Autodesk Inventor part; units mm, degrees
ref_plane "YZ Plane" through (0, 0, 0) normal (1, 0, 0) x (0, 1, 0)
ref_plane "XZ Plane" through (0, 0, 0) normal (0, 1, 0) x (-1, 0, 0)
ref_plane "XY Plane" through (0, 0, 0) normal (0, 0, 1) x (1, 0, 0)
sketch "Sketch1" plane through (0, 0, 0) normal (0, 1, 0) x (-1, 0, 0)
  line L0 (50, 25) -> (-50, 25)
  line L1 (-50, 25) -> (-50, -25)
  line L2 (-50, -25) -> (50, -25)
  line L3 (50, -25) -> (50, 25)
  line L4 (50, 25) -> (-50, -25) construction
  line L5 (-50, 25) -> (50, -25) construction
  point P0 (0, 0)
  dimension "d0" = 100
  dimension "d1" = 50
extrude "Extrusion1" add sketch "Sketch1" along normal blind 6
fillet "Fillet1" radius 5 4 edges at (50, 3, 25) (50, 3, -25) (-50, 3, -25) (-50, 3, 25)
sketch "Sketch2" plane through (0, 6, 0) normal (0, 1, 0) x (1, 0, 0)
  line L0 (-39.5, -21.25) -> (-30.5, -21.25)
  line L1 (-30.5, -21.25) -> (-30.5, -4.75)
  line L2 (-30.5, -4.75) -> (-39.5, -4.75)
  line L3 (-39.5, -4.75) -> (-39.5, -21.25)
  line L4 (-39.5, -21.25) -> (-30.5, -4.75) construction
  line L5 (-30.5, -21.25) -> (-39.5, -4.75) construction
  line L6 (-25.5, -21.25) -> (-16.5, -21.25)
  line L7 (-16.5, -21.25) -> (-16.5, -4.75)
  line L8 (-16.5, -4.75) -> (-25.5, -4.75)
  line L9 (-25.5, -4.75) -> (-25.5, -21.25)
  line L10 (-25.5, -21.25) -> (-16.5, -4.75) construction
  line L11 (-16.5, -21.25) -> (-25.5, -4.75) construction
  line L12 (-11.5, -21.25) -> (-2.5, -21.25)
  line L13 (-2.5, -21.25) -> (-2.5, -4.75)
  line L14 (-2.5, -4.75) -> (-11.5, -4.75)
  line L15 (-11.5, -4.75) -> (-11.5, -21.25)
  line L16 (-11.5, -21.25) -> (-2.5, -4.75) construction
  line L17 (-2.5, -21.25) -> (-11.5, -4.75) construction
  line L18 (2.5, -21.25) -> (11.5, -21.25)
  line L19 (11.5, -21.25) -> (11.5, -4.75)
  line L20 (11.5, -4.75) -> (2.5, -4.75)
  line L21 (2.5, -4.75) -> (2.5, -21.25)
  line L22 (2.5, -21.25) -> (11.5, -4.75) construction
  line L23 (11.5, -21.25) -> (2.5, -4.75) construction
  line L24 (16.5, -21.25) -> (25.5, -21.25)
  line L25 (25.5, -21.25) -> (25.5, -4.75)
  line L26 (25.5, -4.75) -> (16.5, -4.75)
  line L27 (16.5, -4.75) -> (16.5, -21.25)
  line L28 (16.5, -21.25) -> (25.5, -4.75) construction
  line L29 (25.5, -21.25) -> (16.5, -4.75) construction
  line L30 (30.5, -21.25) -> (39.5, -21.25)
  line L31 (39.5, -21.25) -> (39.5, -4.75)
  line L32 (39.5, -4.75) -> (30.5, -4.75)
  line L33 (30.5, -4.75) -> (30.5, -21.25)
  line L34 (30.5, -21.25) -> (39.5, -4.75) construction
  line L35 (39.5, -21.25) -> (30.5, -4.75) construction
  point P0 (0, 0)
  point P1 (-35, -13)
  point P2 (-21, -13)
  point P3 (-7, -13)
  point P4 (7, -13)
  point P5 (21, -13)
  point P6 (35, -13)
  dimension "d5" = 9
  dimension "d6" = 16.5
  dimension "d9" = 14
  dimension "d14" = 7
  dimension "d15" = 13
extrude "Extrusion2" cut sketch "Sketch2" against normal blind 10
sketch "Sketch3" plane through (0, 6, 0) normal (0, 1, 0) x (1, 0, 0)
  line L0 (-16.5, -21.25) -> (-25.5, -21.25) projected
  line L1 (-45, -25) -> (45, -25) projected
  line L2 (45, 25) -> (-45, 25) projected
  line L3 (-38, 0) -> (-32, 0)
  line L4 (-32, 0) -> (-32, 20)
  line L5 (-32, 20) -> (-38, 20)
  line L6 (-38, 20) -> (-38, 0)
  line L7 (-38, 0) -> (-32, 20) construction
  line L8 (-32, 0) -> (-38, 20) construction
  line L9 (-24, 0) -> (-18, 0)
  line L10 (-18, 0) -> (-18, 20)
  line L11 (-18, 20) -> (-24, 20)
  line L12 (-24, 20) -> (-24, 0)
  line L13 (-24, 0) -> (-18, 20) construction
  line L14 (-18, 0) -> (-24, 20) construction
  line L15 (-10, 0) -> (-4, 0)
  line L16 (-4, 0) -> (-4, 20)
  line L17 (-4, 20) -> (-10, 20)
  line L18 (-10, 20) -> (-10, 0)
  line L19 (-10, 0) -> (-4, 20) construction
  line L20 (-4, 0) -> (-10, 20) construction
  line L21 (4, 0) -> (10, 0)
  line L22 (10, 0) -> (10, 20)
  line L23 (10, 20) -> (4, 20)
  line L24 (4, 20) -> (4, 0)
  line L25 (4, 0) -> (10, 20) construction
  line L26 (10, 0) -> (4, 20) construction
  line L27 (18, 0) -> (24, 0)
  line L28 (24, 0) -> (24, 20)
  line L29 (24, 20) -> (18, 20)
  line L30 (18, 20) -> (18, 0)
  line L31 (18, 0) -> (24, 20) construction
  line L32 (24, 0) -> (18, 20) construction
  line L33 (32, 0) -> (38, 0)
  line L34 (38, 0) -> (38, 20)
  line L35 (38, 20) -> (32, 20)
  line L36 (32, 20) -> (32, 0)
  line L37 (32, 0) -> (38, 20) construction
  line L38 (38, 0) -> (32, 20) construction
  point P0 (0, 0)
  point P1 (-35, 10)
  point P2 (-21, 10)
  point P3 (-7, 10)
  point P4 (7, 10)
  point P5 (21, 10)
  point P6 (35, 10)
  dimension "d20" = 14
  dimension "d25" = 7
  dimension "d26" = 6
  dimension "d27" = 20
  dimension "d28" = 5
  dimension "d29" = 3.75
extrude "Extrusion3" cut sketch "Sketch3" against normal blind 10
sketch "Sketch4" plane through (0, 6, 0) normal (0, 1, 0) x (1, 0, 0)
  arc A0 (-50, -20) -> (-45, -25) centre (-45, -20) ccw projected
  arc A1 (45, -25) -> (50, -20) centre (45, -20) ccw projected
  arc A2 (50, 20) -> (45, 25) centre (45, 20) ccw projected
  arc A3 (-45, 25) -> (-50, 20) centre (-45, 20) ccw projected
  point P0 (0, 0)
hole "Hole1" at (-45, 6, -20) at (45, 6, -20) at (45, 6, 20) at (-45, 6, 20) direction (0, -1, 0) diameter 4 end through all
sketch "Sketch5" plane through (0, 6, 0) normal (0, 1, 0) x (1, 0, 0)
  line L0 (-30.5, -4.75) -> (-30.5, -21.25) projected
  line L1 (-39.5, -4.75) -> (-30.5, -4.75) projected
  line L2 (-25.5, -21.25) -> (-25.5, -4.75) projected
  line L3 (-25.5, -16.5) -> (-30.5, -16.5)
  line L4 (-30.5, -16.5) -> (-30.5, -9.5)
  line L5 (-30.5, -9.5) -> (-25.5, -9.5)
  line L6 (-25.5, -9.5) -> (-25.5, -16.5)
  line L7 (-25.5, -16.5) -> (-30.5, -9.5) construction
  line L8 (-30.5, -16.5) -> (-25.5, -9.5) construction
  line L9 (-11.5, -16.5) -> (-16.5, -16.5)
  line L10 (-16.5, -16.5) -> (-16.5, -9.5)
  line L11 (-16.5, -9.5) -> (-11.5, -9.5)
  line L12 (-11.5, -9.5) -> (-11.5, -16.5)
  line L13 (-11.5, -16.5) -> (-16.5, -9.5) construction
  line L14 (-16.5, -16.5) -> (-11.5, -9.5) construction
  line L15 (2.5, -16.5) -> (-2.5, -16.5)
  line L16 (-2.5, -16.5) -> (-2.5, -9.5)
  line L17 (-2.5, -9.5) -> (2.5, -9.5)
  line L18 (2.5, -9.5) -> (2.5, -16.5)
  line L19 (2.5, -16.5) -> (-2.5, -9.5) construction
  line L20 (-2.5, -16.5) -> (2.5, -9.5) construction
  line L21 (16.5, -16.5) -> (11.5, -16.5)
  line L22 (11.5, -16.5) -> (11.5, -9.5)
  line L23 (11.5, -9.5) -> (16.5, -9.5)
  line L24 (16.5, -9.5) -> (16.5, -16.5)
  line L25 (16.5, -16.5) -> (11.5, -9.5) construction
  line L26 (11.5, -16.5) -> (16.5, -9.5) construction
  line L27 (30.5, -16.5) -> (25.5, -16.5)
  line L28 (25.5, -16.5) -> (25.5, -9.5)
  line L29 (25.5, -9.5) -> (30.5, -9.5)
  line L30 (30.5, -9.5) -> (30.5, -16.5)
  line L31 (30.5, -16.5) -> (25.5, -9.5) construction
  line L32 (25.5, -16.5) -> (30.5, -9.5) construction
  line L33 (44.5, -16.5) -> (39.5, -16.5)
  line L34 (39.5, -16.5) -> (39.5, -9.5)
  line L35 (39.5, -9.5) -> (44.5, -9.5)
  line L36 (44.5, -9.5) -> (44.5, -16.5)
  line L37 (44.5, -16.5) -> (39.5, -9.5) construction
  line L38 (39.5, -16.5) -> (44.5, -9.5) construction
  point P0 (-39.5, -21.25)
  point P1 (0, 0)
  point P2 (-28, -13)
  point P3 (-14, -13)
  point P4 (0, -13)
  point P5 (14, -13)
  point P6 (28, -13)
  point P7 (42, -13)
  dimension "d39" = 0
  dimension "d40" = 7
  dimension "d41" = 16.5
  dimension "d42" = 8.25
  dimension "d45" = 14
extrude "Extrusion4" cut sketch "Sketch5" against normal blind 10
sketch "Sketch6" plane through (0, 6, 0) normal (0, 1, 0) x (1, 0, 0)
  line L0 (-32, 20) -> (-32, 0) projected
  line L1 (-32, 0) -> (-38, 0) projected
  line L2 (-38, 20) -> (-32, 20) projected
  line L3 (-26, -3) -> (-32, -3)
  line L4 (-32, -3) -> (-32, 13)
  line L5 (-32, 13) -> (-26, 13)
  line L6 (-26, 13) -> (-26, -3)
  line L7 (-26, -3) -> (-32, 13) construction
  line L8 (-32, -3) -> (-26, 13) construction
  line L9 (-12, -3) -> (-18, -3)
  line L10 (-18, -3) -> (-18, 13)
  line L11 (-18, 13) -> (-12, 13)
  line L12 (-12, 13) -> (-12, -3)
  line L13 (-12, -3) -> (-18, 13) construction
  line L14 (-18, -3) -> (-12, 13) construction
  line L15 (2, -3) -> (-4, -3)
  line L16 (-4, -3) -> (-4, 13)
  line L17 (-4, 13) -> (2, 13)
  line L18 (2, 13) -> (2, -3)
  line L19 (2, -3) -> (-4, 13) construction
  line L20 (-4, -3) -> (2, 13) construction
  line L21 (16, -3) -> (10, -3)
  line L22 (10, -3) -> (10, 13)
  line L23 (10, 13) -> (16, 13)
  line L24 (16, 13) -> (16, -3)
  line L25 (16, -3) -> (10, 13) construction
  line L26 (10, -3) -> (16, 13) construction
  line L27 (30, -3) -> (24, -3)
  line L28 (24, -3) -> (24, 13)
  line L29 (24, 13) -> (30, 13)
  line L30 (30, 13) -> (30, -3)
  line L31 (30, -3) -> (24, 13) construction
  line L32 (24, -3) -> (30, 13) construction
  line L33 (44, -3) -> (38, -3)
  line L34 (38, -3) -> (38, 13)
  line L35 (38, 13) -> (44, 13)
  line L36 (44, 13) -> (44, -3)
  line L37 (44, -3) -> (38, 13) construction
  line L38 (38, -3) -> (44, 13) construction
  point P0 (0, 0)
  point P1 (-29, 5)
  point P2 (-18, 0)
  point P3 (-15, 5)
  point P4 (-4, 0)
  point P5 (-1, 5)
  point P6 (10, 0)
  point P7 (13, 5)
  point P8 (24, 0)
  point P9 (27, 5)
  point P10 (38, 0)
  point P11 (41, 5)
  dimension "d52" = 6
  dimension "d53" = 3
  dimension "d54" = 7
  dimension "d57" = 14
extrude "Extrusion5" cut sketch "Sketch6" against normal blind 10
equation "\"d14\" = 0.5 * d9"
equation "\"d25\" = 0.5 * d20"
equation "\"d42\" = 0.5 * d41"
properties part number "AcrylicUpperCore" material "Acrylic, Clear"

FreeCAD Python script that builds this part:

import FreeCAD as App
import Part
import Sketcher
from FreeCAD import Vector
Q = App.Units.Quantity


def edges_at(feature, points):
    """Names of the edges that pass closest to the given points."""
    edges = feature.Shape.Edges
    near = lambda p: min(range(len(edges)), key=lambda i: edges[i].distToShape(Part.Vertex(*p))[0])
    return sorted({f"Edge{near(p) + 1}" for p in points})


def add_polygon(sketch, points):
    """Adds a closed chain of lines whose ends are joined by coincident constraints."""
    first, n = sketch.GeometryCount, len(points)
    for a, b in zip(points, points[1:] + points[:1]):
        sketch.addGeometry(Part.LineSegment(App.Vector(*a, 0), App.Vector(*b, 0)), False)
    for i in range(n):
        sketch.addConstraint(Sketcher.Constraint("Coincident", first + i, 2, first + (i + 1) % n, 1))

doc = App.newDocument("Part")
body = doc.addObject("PartDesign::Body", "Body")

sketch1 = body.newObject("Sketcher::SketchObject", "Sketch")
sketch1.AttachmentSupport = (doc.getObject("XZ_Plane"), [""])
sketch1.MapMode = "FlatFace"
add_polygon(sketch1, [(-50, -25), (-50, 25), (50, 25), (50, -25)])
sketch1.addConstraint([
    Sketcher.Constraint("Vertical", 0),
    Sketcher.Constraint("Horizontal", 1),
    Sketcher.Constraint("Vertical", 2),
    Sketcher.Constraint("Horizontal", 3),
    Sketcher.Constraint("Symmetric", 0, 2, 2, 2, -1, 1),
    Sketcher.Constraint("DistanceX", 1, 1, 1, 2, Q("100 mm")),
    Sketcher.Constraint("DistanceY", 0, 1, 0, 2, Q("50 mm")),
])
pad1 = body.newObject("PartDesign::Pad", "Pad")
pad1.Profile = sketch1
pad1.Length = 6
pad1.Reversed = True
doc.recompute()

fillet = body.newObject("PartDesign::Fillet", "Fillet")
fillet.Base = (pad1, edges_at(pad1, [
    (50, 3, 25),
    (50, 3, -25),
    (-50, 3, -25),
    (-50, 3, 25),
]))
fillet.Radius = 5

sketch2 = body.newObject("Sketcher::SketchObject", "Sketch001")
sketch2.AttachmentSupport = (doc.getObject("XZ_Plane"), [""])
sketch2.MapMode = "FlatFace"
sketch2.AttachmentOffset = App.Placement(Vector(0, 0, -6), App.Rotation())
add_polygon(sketch2, [(-40, 5), (-40, 21), (-30, 21), (-30, 5)])
add_polygon(sketch2, [(-26, 5), (-26, 21), (-16, 21), (-16, 5)])
add_polygon(sketch2, [(-12, 5), (-12, 21), (-2, 21), (-2, 5)])
add_polygon(sketch2, [(2, 5), (2, 21), (12, 21), (12, 5)])
add_polygon(sketch2, [(16, 5), (16, 21), (26, 21), (26, 5)])
add_polygon(sketch2, [(30, 5), (30, 21), (40, 21), (40, 5)])
sketch2.addConstraint([
    Sketcher.Constraint("Vertical", 0),
    Sketcher.Constraint("Horizontal", 1),
    Sketcher.Constraint("Vertical", 2),
    Sketcher.Constraint("Horizontal", 3),
    Sketcher.Constraint("Vertical", 4),
    Sketcher.Constraint("Horizontal", 5),
    Sketcher.Constraint("Vertical", 6),
    Sketcher.Constraint("Horizontal", 7),
    Sketcher.Constraint("Vertical", 8),
    Sketcher.Constraint("Horizontal", 9),
    Sketcher.Constraint("Vertical", 10),
    Sketcher.Constraint("Horizontal", 11),
    Sketcher.Constraint("Vertical", 12),
    Sketcher.Constraint("Horizontal", 13),
    Sketcher.Constraint("Vertical", 14),
    Sketcher.Constraint("Horizontal", 15),
    Sketcher.Constraint("Vertical", 16),
    Sketcher.Constraint("Horizontal", 17),
    Sketcher.Constraint("Vertical", 18),
    Sketcher.Constraint("Horizontal", 19),
    Sketcher.Constraint("Vertical", 20),
    Sketcher.Constraint("Horizontal", 21),
    Sketcher.Constraint("Vertical", 22),
    Sketcher.Constraint("Horizontal", 23),
    Sketcher.Constraint("Symmetric", 9, 2, 12, 2, -2),
    Sketcher.Constraint("Symmetric", 11, 2, 14, 2, -2),
    Sketcher.Constraint("Symmetric", 5, 2, 16, 2, -2),
    Sketcher.Constraint("Symmetric", 7, 2, 18, 2, -2),
    Sketcher.Constraint("Symmetric", 1, 2, 20, 2, -2),
    Sketcher.Constraint("Symmetric", 3, 2, 22, 2, -2),
    Sketcher.Constraint("Horizontal", 1, 2, 4, 2),
    Sketcher.Constraint("Horizontal", 3, 2, 6, 2),
    Sketcher.Constraint("Horizontal", 5, 2, 8, 2),
    Sketcher.Constraint("Horizontal", 7, 2, 10, 2),
    Sketcher.Constraint("Equal", 3, 5),
    Sketcher.Constraint("Equal", 7, 9),
    Sketcher.Constraint("DistanceX", 1, 1, 1, 2, Q("9 mm")),
    Sketcher.Constraint("DistanceY", 0, 1, 0, 2, Q("16.5 mm")),
    Sketcher.Constraint("DistanceX", 0, 2, 4, 2, Q("14 mm")),
    Sketcher.Constraint("DistanceX", 4, 2, 8, 2, Q("14 mm")),
    Sketcher.Constraint("DistanceX", 8, 2, 12, 2, Q("14 mm")),
    Sketcher.Constraint("DistanceY", -1, 1, 0, 2, Q("21.25 mm")),
])
pocket1 = body.newObject("PartDesign::Pocket", "Pocket")
pocket1.Profile = sketch2
pocket1.Length = 10
pocket1.Reversed = True

sketch3 = body.newObject("Sketcher::SketchObject", "Sketch002")
sketch3.AttachmentSupport = (doc.getObject("XZ_Plane"), [""])
sketch3.MapMode = "FlatFace"
sketch3.AttachmentOffset = App.Placement(Vector(0, 0, -6), App.Rotation())
add_polygon(sketch3, [(-38, -20), (-38, 0), (-32, 0), (-32, -20)])
add_polygon(sketch3, [(-24, -20), (-24, 0), (-18, 0), (-18, -20)])
add_polygon(sketch3, [(-10, -20), (-10, 0), (-4, 0), (-4, -20)])
add_polygon(sketch3, [(4, -20), (4, 0), (10, 0), (10, -20)])
add_polygon(sketch3, [(18, -20), (18, 0), (24, 0), (24, -20)])
add_polygon(sketch3, [(32, -20), (32, 0), (38, 0), (38, -20)])
sketch3.addConstraint([
    Sketcher.Constraint("Vertical", 0),
    Sketcher.Constraint("Horizontal", 1),
    Sketcher.Constraint("Vertical", 2),
    Sketcher.Constraint("Horizontal", 3),
    Sketcher.Constraint("Vertical", 4),
    Sketcher.Constraint("Horizontal", 5),
    Sketcher.Constraint("Vertical", 6),
    Sketcher.Constraint("Horizontal", 7),
    Sketcher.Constraint("Vertical", 8),
    Sketcher.Constraint("Horizontal", 9),
    Sketcher.Constraint("Vertical", 10),
    Sketcher.Constraint("Horizontal", 11),
    Sketcher.Constraint("Vertical", 12),
    Sketcher.Constraint("Horizontal", 13),
    Sketcher.Constraint("Vertical", 14),
    Sketcher.Constraint("Horizontal", 15),
    Sketcher.Constraint("Vertical", 16),
    Sketcher.Constraint("Horizontal", 17),
    Sketcher.Constraint("Vertical", 18),
    Sketcher.Constraint("Horizontal", 19),
    Sketcher.Constraint("Vertical", 20),
    Sketcher.Constraint("Horizontal", 21),
    Sketcher.Constraint("Vertical", 22),
    Sketcher.Constraint("Horizontal", 23),
    Sketcher.Constraint("Symmetric", 9, 2, 12, 2, -1, 1),
    Sketcher.Constraint("Symmetric", 5, 2, 16, 2, -1, 1),
    Sketcher.Constraint("Symmetric", 1, 2, 20, 2, -1, 1),
    Sketcher.Constraint("Symmetric", 8, 2, 13, 2, -2),
    Sketcher.Constraint("Symmetric", 4, 2, 17, 2, -2),
    Sketcher.Constraint("Symmetric", 0, 2, 21, 2, -2),
    Sketcher.Constraint("Horizontal", 3, 2, 6, 2),
    Sketcher.Constraint("Horizontal", 7, 2, 10, 2),
    Sketcher.Constraint("Horizontal", 11, 2, 14, 2),
    Sketcher.Constraint("Horizontal", 15, 2, 18, 2),
    Sketcher.Constraint("Horizontal", 19, 2, 22, 2),
    Sketcher.Constraint("Equal", 3, 5),
    Sketcher.Constraint("Equal", 7, 9),
    Sketcher.Constraint("DistanceX", 1, 1, 1, 2, Q("6 mm")),
    Sketcher.Constraint("DistanceY", 0, 1, 0, 2, Q("20 mm")),
    Sketcher.Constraint("DistanceX", 8, 2, -1, 1, Q("10 mm")),
    Sketcher.Constraint("DistanceX", 0, 2, 4, 2, Q("14 mm")),
    Sketcher.Constraint("DistanceX", 4, 2, 8, 2, Q("14 mm")),
])
pocket2 = body.newObject("PartDesign::Pocket", "Pocket001")
pocket2.Profile = sketch3
pocket2.Length = 10
pocket2.Reversed = True

sketch4 = body.newObject("Sketcher::SketchObject", "Sketch003")
sketch4.AttachmentSupport = (doc.getObject("XZ_Plane"), [""])
sketch4.MapMode = "FlatFace"
sketch4.AttachmentOffset = App.Placement(Vector(0, 0, -6), App.Rotation())
sketch4.addGeometry([
    Part.Circle(Vector(-45, -20, 0), Vector(0, 0, 1), 2),
    Part.Circle(Vector(45, -20, 0), Vector(0, 0, 1), 2),
    Part.Circle(Vector(45, 20, 0), Vector(0, 0, 1), 2),
    Part.Circle(Vector(-45, 20, 0), Vector(0, 0, 1), 2),
], False)
sketch4.addConstraint([
    Sketcher.Constraint("Equal", 0, 1),
    Sketcher.Constraint("Equal", 1, 2),
    Sketcher.Constraint("Equal", 2, 3),
    Sketcher.Constraint("Symmetric", 0, 3, 2, 3, -1, 1),
    Sketcher.Constraint("Symmetric", 1, 3, 3, 3, -1, 1),
    Sketcher.Constraint("Symmetric", 0, 3, 1, 3, -2),
    Sketcher.Constraint("Diameter", 0, Q("4 mm")),
    Sketcher.Constraint("DistanceX", 0, 3, -1, 1, Q("45 mm")),
    Sketcher.Constraint("DistanceY", 0, 3, -1, 1, Q("20 mm")),
])
doc.recompute()
hole = body.newObject("PartDesign::Hole", "Hole")
hole.Profile = sketch4
hole.ThreadType = "None"
hole.Diameter = 4
hole.DepthType = "ThroughAll"
hole.Reversed = True

sketch5 = body.newObject("Sketcher::SketchObject", "Sketch004")
sketch5.AttachmentSupport = (doc.getObject("XZ_Plane"), [""])
sketch5.MapMode = "FlatFace"
sketch5.AttachmentOffset = App.Placement(Vector(0, 0, -6), App.Rotation())
add_polygon(sketch5, [(-26, 10), (-30, 10), (-30, 16), (-26, 16)])
add_polygon(sketch5, [(-16, 16), (-12, 16), (-12, 10), (-16, 10)])
add_polygon(sketch5, [(-2, 16), (2, 16), (2, 10), (-2, 10)])
add_polygon(sketch5, [(12, 16), (16, 16), (16, 10), (12, 10)])
add_polygon(sketch5, [(26, 16), (30, 16), (30, 10), (26, 10)])
add_polygon(sketch5, [(40, 16), (44, 16), (44, 10), (40, 10)])
sketch5.addConstraint([
    Sketcher.Constraint("Horizontal", 0),
    Sketcher.Constraint("Vertical", 1),
    Sketcher.Constraint("Horizontal", 2),
    Sketcher.Constraint("Vertical", 3),
    Sketcher.Constraint("Horizontal", 4),
    Sketcher.Constraint("Vertical", 5),
    Sketcher.Constraint("Horizontal", 6),
    Sketcher.Constraint("Vertical", 7),
    Sketcher.Constraint("Horizontal", 8),
    Sketcher.Constraint("Vertical", 9),
    Sketcher.Constraint("Horizontal", 10),
    Sketcher.Constraint("Vertical", 11),
    Sketcher.Constraint("Horizontal", 12),
    Sketcher.Constraint("Vertical", 13),
    Sketcher.Constraint("Horizontal", 14),
    Sketcher.Constraint("Vertical", 15),
    Sketcher.Constraint("Horizontal", 16),
    Sketcher.Constraint("Vertical", 17),
    Sketcher.Constraint("Horizontal", 18),
    Sketcher.Constraint("Vertical", 19),
    Sketcher.Constraint("Horizontal", 20),
    Sketcher.Constraint("Vertical", 21),
    Sketcher.Constraint("Horizontal", 22),
    Sketcher.Constraint("Vertical", 23),
    Sketcher.Constraint("Symmetric", 7, 2, 12, 2, -2),
    Sketcher.Constraint("Symmetric", 5, 2, 14, 2, -2),
    Sketcher.Constraint("Symmetric", 1, 2, 16, 2, -2),
    Sketcher.Constraint("Symmetric", 3, 2, 18, 2, -2),
    Sketcher.Constraint("Horizontal", 2, 2, 4, 2),
    Sketcher.Constraint("Horizontal", 3, 2, 5, 2),
    Sketcher.Constraint("Horizontal", 7, 2, 8, 2),
    Sketcher.Constraint("Horizontal", 6, 2, 9, 2),
    Sketcher.Constraint("Horizontal", 19, 2, 20, 2),
    Sketcher.Constraint("Horizontal", 18, 2, 21, 2),
    Sketcher.Constraint("Equal", 2, 4),
    Sketcher.Constraint("Equal", 6, 8),
    Sketcher.Constraint("Equal", 18, 20),
    Sketcher.Constraint("DistanceY", 1, 1, 1, 2, Q("7 mm")),
    Sketcher.Constraint("DistanceX", 2, 2, 4, 2, Q("14 mm")),
    Sketcher.Constraint("DistanceX", 4, 2, 8, 2, Q("14 mm")),
    Sketcher.Constraint("DistanceX", 8, 2, 12, 2, Q("14 mm")),
    Sketcher.Constraint("DistanceX", 16, 2, 20, 2, Q("14 mm")),
    Sketcher.Constraint("DistanceY", -1, 1, 1, 2, Q("16.5 mm")),
    Sketcher.Constraint("DistanceX", 6, 2, -1, 1, Q("16.5 mm")),
])
pocket3 = body.newObject("PartDesign::Pocket", "Pocket002")
pocket3.Profile = sketch5
pocket3.Length = 10
pocket3.Reversed = True

sketch6 = body.newObject("Sketcher::SketchObject", "Sketch005")
sketch6.AttachmentSupport = (doc.getObject("XZ_Plane"), [""])
sketch6.MapMode = "FlatFace"
sketch6.AttachmentOffset = App.Placement(Vector(0, 0, -6), App.Rotation())
add_polygon(sketch6, [(-26, -13), (-32, -13), (-32, 3), (-26, 3)])
add_polygon(sketch6, [(-18, 3), (-12, 3), (-12, -13), (-18, -13)])
add_polygon(sketch6, [(-4, 3), (2, 3), (2, -13), (-4, -13)])
add_polygon(sketch6, [(10, 3), (16, 3), (16, -13), (10, -13)])
add_polygon(sketch6, [(24, 3), (30, 3), (30, -13), (24, -13)])
add_polygon(sketch6, [(38, 3), (44, 3), (44, -13), (38, -13)])
sketch6.addConstraint([
    Sketcher.Constraint("Horizontal", 0),
    Sketcher.Constraint("Vertical", 1),
    Sketcher.Constraint("Horizontal", 2),
    Sketcher.Constraint("Vertical", 3),
    Sketcher.Constraint("Horizontal", 4),
    Sketcher.Constraint("Vertical", 5),
    Sketcher.Constraint("Horizontal", 6),
    Sketcher.Constraint("Vertical", 7),
    Sketcher.Constraint("Horizontal", 8),
    Sketcher.Constraint("Vertical", 9),
    Sketcher.Constraint("Horizontal", 10),
    Sketcher.Constraint("Vertical", 11),
    Sketcher.Constraint("Horizontal", 12),
    Sketcher.Constraint("Vertical", 13),
    Sketcher.Constraint("Horizontal", 14),
    Sketcher.Constraint("Vertical", 15),
    Sketcher.Constraint("Horizontal", 16),
    Sketcher.Constraint("Vertical", 17),
    Sketcher.Constraint("Horizontal", 18),
    Sketcher.Constraint("Vertical", 19),
    Sketcher.Constraint("Horizontal", 20),
    Sketcher.Constraint("Vertical", 21),
    Sketcher.Constraint("Horizontal", 22),
    Sketcher.Constraint("Vertical", 23),
    Sketcher.Constraint("Horizontal", 2, 2, 4, 2),
    Sketcher.Constraint("Horizontal", 3, 2, 5, 2),
    Sketcher.Constraint("Horizontal", 7, 2, 8, 2),
    Sketcher.Constraint("Horizontal", 6, 2, 9, 2),
    Sketcher.Constraint("Horizontal", 11, 2, 12, 2),
    Sketcher.Constraint("Horizontal", 10, 2, 13, 2),
    Sketcher.Constraint("Horizontal", 15, 2, 16, 2),
    Sketcher.Constraint("Horizontal", 14, 2, 17, 2),
    Sketcher.Constraint("Horizontal", 19, 2, 20, 2),
    Sketcher.Constraint("Horizontal", 18, 2, 21, 2),
    Sketcher.Constraint("Equal", 2, 4),
    Sketcher.Constraint("Equal", 6, 8),
    Sketcher.Constraint("Equal", 10, 12),
    Sketcher.Constraint("Equal", 14, 16),
    Sketcher.Constraint("Equal", 18, 20),
    Sketcher.Constraint("DistanceX", 0, 2, 0, 1, Q("6 mm")),
    Sketcher.Constraint("DistanceY", -1, 1, 1, 2, Q("3 mm")),
    Sketcher.Constraint("DistanceX", -1, 1, 14, 2, Q("10 mm")),
    Sketcher.Constraint("DistanceX", 2, 2, 4, 2, Q("14 mm")),
    Sketcher.Constraint("DistanceX", 4, 2, 8, 2, Q("14 mm")),
    Sketcher.Constraint("DistanceX", 8, 2, 12, 2, Q("14 mm")),
    Sketcher.Constraint("DistanceX", 12, 2, 16, 2, Q("14 mm")),
    Sketcher.Constraint("DistanceX", 16, 2, 20, 2, Q("14 mm")),
    Sketcher.Constraint("DistanceY", 1, 1, 1, 2, Q("16 mm")),
])
pocket4 = body.newObject("PartDesign::Pocket", "Pocket003")
pocket4.Profile = sketch6
pocket4.Length = 10
pocket4.Reversed = True

doc.recompute()
